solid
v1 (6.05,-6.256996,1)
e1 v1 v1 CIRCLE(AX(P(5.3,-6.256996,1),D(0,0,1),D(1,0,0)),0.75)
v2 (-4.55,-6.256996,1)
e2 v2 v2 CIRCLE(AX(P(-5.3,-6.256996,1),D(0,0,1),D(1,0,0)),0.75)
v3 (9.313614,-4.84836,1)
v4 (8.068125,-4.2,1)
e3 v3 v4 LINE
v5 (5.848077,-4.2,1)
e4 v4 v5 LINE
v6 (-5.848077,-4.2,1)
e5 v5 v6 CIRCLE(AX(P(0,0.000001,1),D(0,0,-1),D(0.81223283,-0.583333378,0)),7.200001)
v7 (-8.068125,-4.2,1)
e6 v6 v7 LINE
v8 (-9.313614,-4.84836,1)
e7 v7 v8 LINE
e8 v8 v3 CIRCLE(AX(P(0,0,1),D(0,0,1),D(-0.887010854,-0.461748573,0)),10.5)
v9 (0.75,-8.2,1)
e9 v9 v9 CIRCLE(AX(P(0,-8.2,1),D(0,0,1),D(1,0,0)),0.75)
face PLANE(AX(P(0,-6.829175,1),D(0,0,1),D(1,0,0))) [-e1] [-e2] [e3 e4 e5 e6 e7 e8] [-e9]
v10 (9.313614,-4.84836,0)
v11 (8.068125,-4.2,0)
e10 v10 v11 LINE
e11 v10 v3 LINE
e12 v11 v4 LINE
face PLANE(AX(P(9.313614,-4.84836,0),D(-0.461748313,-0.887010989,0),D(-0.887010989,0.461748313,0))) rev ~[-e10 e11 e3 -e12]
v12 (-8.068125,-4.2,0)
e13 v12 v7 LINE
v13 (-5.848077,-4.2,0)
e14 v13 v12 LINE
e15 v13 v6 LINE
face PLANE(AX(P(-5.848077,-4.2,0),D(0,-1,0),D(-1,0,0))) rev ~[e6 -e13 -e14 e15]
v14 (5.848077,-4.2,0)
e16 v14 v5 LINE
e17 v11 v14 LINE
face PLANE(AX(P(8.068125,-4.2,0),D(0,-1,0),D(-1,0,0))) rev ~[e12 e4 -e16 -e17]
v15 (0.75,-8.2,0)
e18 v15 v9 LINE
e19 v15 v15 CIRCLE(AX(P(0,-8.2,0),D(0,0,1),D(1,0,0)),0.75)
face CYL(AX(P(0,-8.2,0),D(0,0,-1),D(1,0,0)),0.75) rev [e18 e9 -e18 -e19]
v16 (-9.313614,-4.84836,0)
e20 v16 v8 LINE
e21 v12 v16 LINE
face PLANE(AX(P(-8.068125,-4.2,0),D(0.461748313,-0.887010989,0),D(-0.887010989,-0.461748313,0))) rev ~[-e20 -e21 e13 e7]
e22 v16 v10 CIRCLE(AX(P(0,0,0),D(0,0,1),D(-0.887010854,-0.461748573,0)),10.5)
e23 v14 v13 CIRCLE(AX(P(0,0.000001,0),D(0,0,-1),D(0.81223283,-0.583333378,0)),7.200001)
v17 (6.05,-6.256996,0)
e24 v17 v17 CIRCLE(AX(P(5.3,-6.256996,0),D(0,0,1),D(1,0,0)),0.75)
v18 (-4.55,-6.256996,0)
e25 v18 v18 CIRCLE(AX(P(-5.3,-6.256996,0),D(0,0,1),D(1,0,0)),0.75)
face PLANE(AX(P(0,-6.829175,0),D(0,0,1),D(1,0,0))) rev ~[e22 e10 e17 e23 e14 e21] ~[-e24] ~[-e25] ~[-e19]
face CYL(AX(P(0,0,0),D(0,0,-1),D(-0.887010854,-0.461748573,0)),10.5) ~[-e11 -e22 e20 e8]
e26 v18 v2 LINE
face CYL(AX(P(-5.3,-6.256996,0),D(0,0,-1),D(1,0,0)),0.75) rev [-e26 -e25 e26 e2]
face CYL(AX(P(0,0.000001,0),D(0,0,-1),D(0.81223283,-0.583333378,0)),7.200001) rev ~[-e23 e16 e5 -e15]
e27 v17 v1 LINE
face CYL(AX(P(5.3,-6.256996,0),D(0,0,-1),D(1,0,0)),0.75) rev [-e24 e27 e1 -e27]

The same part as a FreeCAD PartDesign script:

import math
import FreeCAD as App
import Part
import Sketcher

V = App.Vector
Q = App.Units.Quantity

doc = App.newDocument("Part")
body = doc.addObject("PartDesign::Body", "Body")

sketch1 = body.newObject("Sketcher::SketchObject", "Sketch")
sketch1.AttachmentSupport = (doc.getObject("XY_Plane"), [""])
sketch1.MapMode = "FlatFace"
sketch1.addGeometry(Part.LineSegment(V(-8.068125, -4.2, 0), V(-9.313614, -4.84836, 0)), False)
sketch1.addGeometry(Part.ArcOfCircle(Part.Circle(V(0, 0, 0), V(0, 0, 1), 10.5), math.radians(-152.500003), math.radians(-27.499997)), False)
sketch1.addGeometry(Part.LineSegment(V(9.313614, -4.84836, 0), V(8.068125, -4.2, 0)), False)
sketch1.addGeometry(Part.LineSegment(V(8.068125, -4.2, 0), V(5.848077, -4.2, 0)), False)
sketch1.addGeometry(Part.ArcOfCircle(Part.Circle(V(0, 0.000001, 0), V(0, 0, 1), 7.200001), math.radians(-144.314662), math.radians(-35.685338)), False)
sketch1.addGeometry(Part.LineSegment(V(-5.848077, -4.2, 0), V(-8.068125, -4.2, 0)), False)
sketch1.addGeometry(Part.Circle(V(0, -8.2, 0), V(0, 0, 1), 0.75), False)
sketch1.addGeometry(Part.Circle(V(-5.3, -6.256996, 0), V(0, 0, 1), 0.75), False)
sketch1.addGeometry(Part.Circle(V(5.3, -6.256996, 0), V(0, 0, 1), 0.75), False)
sketch1.addConstraint(Sketcher.Constraint("Coincident", 0, 2, 1, 1))
sketch1.addConstraint(Sketcher.Constraint("Coincident", 1, 2, 2, 1))
sketch1.addConstraint(Sketcher.Constraint("Coincident", 2, 2, 3, 1))
sketch1.addConstraint(Sketcher.Constraint("Coincident", 3, 2, 4, 2))
sketch1.addConstraint(Sketcher.Constraint("Coincident", 4, 1, 5, 1))
sketch1.addConstraint(Sketcher.Constraint("Coincident", 5, 2, 0, 1))
sketch1.addConstraint(Sketcher.Constraint("Horizontal", 3))
sketch1.addConstraint(Sketcher.Constraint("Horizontal", 5))
sketch1.addConstraint(Sketcher.Constraint("Coincident", 1, 3, -1, 1))
sketch1.addConstraint(Sketcher.Constraint("Coincident", 4, 3, -1, 1))
sketch1.addConstraint(Sketcher.Constraint("Equal", 6, 7))
sketch1.addConstraint(Sketcher.Constraint("Equal", 7, 8))
sketch1.addConstraint(Sketcher.Constraint("Symmetric", 7, 3, 8, 3, -2))
sketch1.addConstraint(Sketcher.Constraint("Symmetric", 2, 2, 5, 2, -2))
sketch1.addConstraint(Sketcher.Constraint("PointOnObject", 6, 3, -2))
sketch1.addConstraint(Sketcher.Constraint("Horizontal", 0, 2, 1, 2))
sketch1.addConstraint(Sketcher.Constraint("Diameter", 6, Q("1.5 mm")))
sketch1.addConstraint(Sketcher.Constraint("Radius", 1, Q("10.5 mm")))
sketch1.addConstraint(Sketcher.Constraint("Radius", 4, Q("7.200001 mm")))
sketch1.addConstraint(Sketcher.Constraint("Angle", 0, Q("-152.500019 deg")))
sketch1.addConstraint(Sketcher.Constraint("DistanceY", 6, 3, 2, 2, Q("4 mm")))
sketch1.addConstraint(Sketcher.Constraint("DistanceY", 6, 3, -1, 1, Q("8.2 mm")))
sketch1.addConstraint(Sketcher.Constraint("DistanceX", 7, 3, -1, 1, Q("5.3 mm")))
sketch1.addConstraint(Sketcher.Constraint("DistanceX", 3, 2, 3, 1, Q("2.220048 mm")))
sketch1.addConstraint(Sketcher.Constraint("DistanceY", 7, 3, -1, 1, Q("6.256996 mm")))
pad1 = body.newObject("PartDesign::Pad", "Pad")
pad1.Profile = sketch1
pad1.Length = 1

doc.recompute()
